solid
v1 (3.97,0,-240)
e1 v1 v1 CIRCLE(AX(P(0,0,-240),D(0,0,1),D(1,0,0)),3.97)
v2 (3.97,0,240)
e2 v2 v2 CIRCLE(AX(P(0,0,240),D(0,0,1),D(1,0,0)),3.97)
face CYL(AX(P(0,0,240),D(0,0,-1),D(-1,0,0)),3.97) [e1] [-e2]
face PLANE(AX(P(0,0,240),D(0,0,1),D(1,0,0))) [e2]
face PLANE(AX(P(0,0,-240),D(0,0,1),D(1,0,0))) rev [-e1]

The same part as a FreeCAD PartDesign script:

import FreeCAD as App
import Part
import Sketcher
from FreeCAD import Vector
Q = App.Units.Quantity

doc = App.newDocument("Part")
params = doc.addObject("Spreadsheet::Sheet", "Params")
for row, (alias, value) in enumerate([
    ("sketch1_diameter", "7.94 mm"),
    ("pad1_length", "480 mm"),
], start=1):
    params.set(f"A{row}", alias)
    params.set(f"B{row}", "=" + value)
    params.setAlias(f"B{row}", alias)

body = doc.addObject("PartDesign::Body", "Body")

# Sketch on XY plane
sketch1 = body.newObject("Sketcher::SketchObject", "Sketch")
sketch1.AttachmentSupport = (doc.getObject("XY_Plane"), [""])
sketch1.MapMode = "FlatFace"
sketch1.addGeometry(Part.Circle(Vector(0, 0, 0), Vector(0, 0, 1), 3.97), False)
sketch1.addConstraint(Sketcher.Constraint("Coincident", 0, 3, -1, 1))
sketch1.addConstraint(Sketcher.Constraint("Diameter", 0, Q("7.94 mm")))
sketch1.setExpression("Constraints[1]", "Params.sketch1_diameter")
pad1 = body.newObject("PartDesign::Pad", "Pad")
pad1.Profile = sketch1
pad1.setExpression("Length", "Params.pad1_length")
pad1.Midplane = True

doc.recompute()
